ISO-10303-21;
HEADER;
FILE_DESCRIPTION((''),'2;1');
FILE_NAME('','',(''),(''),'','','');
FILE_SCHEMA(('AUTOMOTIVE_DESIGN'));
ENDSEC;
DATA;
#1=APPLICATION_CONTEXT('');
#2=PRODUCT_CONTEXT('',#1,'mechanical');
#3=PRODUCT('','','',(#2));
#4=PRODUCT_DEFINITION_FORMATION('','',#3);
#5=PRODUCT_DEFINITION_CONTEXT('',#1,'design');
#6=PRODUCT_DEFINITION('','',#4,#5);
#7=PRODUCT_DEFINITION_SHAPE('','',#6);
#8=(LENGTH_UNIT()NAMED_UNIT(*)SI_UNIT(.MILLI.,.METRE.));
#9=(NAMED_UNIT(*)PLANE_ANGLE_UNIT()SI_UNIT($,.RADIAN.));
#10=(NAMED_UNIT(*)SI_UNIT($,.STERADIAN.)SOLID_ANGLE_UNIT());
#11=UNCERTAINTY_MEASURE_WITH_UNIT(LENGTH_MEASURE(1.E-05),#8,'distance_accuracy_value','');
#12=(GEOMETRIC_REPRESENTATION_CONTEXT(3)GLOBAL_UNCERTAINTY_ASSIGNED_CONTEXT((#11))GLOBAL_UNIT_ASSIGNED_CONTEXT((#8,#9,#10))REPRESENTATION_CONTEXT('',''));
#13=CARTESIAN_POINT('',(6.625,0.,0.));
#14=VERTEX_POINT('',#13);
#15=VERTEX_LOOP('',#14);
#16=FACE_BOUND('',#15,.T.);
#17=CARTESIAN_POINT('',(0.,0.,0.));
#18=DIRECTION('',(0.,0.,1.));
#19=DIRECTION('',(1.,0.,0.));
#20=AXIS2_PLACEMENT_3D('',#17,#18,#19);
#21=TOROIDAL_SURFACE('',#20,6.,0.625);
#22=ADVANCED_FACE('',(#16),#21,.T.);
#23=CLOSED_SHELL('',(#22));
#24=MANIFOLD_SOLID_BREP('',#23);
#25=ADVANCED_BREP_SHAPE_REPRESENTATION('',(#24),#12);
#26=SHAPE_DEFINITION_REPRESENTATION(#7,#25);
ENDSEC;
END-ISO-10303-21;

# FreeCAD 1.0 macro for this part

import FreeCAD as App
import Part
import Sketcher
Q = App.Units.Quantity

doc = App.newDocument("Part")
params = doc.addObject("Spreadsheet::Sheet", "Params")
for row, (alias, value) in enumerate([
    ("sketch1_diameter", "1.25 mm"),
    ("revolution_angle", "360 deg"),
], start=1):
    params.set(f"A{row}", alias)
    params.set(f"B{row}", "=" + value)
    params.setAlias(f"B{row}", alias)

body = doc.addObject("PartDesign::Body", "Body")

# Sketch on XZ plane
sketch1 = body.newObject("Sketcher::SketchObject", "Sketch")
sketch1.AttachmentSupport = (doc.getObject("XZ_Plane"), [""])
sketch1.MapMode = "FlatFace"
sketch1.addGeometry(Part.Circle(App.Vector(6, 0, 0), App.Vector(0, 0, 1), 0.625), False)
sketch1.addConstraint([
    Sketcher.Constraint("PointOnObject", 0, 3, -1),
    Sketcher.Constraint("Diameter", 0, Q("1.25 mm")),
    Sketcher.Constraint("DistanceX", -1, 1, 0, 3, Q("6 mm")),
])
sketch1.setExpression("Constraints[1]", "Params.sketch1_diameter")
revolution = body.newObject("PartDesign::Revolution", "Revolution")
revolution.Profile = sketch1
revolution.ReferenceAxis = (sketch1, ["V_Axis"])
revolution.setExpression("Angle", "Params.revolution_angle")

doc.recompute()
